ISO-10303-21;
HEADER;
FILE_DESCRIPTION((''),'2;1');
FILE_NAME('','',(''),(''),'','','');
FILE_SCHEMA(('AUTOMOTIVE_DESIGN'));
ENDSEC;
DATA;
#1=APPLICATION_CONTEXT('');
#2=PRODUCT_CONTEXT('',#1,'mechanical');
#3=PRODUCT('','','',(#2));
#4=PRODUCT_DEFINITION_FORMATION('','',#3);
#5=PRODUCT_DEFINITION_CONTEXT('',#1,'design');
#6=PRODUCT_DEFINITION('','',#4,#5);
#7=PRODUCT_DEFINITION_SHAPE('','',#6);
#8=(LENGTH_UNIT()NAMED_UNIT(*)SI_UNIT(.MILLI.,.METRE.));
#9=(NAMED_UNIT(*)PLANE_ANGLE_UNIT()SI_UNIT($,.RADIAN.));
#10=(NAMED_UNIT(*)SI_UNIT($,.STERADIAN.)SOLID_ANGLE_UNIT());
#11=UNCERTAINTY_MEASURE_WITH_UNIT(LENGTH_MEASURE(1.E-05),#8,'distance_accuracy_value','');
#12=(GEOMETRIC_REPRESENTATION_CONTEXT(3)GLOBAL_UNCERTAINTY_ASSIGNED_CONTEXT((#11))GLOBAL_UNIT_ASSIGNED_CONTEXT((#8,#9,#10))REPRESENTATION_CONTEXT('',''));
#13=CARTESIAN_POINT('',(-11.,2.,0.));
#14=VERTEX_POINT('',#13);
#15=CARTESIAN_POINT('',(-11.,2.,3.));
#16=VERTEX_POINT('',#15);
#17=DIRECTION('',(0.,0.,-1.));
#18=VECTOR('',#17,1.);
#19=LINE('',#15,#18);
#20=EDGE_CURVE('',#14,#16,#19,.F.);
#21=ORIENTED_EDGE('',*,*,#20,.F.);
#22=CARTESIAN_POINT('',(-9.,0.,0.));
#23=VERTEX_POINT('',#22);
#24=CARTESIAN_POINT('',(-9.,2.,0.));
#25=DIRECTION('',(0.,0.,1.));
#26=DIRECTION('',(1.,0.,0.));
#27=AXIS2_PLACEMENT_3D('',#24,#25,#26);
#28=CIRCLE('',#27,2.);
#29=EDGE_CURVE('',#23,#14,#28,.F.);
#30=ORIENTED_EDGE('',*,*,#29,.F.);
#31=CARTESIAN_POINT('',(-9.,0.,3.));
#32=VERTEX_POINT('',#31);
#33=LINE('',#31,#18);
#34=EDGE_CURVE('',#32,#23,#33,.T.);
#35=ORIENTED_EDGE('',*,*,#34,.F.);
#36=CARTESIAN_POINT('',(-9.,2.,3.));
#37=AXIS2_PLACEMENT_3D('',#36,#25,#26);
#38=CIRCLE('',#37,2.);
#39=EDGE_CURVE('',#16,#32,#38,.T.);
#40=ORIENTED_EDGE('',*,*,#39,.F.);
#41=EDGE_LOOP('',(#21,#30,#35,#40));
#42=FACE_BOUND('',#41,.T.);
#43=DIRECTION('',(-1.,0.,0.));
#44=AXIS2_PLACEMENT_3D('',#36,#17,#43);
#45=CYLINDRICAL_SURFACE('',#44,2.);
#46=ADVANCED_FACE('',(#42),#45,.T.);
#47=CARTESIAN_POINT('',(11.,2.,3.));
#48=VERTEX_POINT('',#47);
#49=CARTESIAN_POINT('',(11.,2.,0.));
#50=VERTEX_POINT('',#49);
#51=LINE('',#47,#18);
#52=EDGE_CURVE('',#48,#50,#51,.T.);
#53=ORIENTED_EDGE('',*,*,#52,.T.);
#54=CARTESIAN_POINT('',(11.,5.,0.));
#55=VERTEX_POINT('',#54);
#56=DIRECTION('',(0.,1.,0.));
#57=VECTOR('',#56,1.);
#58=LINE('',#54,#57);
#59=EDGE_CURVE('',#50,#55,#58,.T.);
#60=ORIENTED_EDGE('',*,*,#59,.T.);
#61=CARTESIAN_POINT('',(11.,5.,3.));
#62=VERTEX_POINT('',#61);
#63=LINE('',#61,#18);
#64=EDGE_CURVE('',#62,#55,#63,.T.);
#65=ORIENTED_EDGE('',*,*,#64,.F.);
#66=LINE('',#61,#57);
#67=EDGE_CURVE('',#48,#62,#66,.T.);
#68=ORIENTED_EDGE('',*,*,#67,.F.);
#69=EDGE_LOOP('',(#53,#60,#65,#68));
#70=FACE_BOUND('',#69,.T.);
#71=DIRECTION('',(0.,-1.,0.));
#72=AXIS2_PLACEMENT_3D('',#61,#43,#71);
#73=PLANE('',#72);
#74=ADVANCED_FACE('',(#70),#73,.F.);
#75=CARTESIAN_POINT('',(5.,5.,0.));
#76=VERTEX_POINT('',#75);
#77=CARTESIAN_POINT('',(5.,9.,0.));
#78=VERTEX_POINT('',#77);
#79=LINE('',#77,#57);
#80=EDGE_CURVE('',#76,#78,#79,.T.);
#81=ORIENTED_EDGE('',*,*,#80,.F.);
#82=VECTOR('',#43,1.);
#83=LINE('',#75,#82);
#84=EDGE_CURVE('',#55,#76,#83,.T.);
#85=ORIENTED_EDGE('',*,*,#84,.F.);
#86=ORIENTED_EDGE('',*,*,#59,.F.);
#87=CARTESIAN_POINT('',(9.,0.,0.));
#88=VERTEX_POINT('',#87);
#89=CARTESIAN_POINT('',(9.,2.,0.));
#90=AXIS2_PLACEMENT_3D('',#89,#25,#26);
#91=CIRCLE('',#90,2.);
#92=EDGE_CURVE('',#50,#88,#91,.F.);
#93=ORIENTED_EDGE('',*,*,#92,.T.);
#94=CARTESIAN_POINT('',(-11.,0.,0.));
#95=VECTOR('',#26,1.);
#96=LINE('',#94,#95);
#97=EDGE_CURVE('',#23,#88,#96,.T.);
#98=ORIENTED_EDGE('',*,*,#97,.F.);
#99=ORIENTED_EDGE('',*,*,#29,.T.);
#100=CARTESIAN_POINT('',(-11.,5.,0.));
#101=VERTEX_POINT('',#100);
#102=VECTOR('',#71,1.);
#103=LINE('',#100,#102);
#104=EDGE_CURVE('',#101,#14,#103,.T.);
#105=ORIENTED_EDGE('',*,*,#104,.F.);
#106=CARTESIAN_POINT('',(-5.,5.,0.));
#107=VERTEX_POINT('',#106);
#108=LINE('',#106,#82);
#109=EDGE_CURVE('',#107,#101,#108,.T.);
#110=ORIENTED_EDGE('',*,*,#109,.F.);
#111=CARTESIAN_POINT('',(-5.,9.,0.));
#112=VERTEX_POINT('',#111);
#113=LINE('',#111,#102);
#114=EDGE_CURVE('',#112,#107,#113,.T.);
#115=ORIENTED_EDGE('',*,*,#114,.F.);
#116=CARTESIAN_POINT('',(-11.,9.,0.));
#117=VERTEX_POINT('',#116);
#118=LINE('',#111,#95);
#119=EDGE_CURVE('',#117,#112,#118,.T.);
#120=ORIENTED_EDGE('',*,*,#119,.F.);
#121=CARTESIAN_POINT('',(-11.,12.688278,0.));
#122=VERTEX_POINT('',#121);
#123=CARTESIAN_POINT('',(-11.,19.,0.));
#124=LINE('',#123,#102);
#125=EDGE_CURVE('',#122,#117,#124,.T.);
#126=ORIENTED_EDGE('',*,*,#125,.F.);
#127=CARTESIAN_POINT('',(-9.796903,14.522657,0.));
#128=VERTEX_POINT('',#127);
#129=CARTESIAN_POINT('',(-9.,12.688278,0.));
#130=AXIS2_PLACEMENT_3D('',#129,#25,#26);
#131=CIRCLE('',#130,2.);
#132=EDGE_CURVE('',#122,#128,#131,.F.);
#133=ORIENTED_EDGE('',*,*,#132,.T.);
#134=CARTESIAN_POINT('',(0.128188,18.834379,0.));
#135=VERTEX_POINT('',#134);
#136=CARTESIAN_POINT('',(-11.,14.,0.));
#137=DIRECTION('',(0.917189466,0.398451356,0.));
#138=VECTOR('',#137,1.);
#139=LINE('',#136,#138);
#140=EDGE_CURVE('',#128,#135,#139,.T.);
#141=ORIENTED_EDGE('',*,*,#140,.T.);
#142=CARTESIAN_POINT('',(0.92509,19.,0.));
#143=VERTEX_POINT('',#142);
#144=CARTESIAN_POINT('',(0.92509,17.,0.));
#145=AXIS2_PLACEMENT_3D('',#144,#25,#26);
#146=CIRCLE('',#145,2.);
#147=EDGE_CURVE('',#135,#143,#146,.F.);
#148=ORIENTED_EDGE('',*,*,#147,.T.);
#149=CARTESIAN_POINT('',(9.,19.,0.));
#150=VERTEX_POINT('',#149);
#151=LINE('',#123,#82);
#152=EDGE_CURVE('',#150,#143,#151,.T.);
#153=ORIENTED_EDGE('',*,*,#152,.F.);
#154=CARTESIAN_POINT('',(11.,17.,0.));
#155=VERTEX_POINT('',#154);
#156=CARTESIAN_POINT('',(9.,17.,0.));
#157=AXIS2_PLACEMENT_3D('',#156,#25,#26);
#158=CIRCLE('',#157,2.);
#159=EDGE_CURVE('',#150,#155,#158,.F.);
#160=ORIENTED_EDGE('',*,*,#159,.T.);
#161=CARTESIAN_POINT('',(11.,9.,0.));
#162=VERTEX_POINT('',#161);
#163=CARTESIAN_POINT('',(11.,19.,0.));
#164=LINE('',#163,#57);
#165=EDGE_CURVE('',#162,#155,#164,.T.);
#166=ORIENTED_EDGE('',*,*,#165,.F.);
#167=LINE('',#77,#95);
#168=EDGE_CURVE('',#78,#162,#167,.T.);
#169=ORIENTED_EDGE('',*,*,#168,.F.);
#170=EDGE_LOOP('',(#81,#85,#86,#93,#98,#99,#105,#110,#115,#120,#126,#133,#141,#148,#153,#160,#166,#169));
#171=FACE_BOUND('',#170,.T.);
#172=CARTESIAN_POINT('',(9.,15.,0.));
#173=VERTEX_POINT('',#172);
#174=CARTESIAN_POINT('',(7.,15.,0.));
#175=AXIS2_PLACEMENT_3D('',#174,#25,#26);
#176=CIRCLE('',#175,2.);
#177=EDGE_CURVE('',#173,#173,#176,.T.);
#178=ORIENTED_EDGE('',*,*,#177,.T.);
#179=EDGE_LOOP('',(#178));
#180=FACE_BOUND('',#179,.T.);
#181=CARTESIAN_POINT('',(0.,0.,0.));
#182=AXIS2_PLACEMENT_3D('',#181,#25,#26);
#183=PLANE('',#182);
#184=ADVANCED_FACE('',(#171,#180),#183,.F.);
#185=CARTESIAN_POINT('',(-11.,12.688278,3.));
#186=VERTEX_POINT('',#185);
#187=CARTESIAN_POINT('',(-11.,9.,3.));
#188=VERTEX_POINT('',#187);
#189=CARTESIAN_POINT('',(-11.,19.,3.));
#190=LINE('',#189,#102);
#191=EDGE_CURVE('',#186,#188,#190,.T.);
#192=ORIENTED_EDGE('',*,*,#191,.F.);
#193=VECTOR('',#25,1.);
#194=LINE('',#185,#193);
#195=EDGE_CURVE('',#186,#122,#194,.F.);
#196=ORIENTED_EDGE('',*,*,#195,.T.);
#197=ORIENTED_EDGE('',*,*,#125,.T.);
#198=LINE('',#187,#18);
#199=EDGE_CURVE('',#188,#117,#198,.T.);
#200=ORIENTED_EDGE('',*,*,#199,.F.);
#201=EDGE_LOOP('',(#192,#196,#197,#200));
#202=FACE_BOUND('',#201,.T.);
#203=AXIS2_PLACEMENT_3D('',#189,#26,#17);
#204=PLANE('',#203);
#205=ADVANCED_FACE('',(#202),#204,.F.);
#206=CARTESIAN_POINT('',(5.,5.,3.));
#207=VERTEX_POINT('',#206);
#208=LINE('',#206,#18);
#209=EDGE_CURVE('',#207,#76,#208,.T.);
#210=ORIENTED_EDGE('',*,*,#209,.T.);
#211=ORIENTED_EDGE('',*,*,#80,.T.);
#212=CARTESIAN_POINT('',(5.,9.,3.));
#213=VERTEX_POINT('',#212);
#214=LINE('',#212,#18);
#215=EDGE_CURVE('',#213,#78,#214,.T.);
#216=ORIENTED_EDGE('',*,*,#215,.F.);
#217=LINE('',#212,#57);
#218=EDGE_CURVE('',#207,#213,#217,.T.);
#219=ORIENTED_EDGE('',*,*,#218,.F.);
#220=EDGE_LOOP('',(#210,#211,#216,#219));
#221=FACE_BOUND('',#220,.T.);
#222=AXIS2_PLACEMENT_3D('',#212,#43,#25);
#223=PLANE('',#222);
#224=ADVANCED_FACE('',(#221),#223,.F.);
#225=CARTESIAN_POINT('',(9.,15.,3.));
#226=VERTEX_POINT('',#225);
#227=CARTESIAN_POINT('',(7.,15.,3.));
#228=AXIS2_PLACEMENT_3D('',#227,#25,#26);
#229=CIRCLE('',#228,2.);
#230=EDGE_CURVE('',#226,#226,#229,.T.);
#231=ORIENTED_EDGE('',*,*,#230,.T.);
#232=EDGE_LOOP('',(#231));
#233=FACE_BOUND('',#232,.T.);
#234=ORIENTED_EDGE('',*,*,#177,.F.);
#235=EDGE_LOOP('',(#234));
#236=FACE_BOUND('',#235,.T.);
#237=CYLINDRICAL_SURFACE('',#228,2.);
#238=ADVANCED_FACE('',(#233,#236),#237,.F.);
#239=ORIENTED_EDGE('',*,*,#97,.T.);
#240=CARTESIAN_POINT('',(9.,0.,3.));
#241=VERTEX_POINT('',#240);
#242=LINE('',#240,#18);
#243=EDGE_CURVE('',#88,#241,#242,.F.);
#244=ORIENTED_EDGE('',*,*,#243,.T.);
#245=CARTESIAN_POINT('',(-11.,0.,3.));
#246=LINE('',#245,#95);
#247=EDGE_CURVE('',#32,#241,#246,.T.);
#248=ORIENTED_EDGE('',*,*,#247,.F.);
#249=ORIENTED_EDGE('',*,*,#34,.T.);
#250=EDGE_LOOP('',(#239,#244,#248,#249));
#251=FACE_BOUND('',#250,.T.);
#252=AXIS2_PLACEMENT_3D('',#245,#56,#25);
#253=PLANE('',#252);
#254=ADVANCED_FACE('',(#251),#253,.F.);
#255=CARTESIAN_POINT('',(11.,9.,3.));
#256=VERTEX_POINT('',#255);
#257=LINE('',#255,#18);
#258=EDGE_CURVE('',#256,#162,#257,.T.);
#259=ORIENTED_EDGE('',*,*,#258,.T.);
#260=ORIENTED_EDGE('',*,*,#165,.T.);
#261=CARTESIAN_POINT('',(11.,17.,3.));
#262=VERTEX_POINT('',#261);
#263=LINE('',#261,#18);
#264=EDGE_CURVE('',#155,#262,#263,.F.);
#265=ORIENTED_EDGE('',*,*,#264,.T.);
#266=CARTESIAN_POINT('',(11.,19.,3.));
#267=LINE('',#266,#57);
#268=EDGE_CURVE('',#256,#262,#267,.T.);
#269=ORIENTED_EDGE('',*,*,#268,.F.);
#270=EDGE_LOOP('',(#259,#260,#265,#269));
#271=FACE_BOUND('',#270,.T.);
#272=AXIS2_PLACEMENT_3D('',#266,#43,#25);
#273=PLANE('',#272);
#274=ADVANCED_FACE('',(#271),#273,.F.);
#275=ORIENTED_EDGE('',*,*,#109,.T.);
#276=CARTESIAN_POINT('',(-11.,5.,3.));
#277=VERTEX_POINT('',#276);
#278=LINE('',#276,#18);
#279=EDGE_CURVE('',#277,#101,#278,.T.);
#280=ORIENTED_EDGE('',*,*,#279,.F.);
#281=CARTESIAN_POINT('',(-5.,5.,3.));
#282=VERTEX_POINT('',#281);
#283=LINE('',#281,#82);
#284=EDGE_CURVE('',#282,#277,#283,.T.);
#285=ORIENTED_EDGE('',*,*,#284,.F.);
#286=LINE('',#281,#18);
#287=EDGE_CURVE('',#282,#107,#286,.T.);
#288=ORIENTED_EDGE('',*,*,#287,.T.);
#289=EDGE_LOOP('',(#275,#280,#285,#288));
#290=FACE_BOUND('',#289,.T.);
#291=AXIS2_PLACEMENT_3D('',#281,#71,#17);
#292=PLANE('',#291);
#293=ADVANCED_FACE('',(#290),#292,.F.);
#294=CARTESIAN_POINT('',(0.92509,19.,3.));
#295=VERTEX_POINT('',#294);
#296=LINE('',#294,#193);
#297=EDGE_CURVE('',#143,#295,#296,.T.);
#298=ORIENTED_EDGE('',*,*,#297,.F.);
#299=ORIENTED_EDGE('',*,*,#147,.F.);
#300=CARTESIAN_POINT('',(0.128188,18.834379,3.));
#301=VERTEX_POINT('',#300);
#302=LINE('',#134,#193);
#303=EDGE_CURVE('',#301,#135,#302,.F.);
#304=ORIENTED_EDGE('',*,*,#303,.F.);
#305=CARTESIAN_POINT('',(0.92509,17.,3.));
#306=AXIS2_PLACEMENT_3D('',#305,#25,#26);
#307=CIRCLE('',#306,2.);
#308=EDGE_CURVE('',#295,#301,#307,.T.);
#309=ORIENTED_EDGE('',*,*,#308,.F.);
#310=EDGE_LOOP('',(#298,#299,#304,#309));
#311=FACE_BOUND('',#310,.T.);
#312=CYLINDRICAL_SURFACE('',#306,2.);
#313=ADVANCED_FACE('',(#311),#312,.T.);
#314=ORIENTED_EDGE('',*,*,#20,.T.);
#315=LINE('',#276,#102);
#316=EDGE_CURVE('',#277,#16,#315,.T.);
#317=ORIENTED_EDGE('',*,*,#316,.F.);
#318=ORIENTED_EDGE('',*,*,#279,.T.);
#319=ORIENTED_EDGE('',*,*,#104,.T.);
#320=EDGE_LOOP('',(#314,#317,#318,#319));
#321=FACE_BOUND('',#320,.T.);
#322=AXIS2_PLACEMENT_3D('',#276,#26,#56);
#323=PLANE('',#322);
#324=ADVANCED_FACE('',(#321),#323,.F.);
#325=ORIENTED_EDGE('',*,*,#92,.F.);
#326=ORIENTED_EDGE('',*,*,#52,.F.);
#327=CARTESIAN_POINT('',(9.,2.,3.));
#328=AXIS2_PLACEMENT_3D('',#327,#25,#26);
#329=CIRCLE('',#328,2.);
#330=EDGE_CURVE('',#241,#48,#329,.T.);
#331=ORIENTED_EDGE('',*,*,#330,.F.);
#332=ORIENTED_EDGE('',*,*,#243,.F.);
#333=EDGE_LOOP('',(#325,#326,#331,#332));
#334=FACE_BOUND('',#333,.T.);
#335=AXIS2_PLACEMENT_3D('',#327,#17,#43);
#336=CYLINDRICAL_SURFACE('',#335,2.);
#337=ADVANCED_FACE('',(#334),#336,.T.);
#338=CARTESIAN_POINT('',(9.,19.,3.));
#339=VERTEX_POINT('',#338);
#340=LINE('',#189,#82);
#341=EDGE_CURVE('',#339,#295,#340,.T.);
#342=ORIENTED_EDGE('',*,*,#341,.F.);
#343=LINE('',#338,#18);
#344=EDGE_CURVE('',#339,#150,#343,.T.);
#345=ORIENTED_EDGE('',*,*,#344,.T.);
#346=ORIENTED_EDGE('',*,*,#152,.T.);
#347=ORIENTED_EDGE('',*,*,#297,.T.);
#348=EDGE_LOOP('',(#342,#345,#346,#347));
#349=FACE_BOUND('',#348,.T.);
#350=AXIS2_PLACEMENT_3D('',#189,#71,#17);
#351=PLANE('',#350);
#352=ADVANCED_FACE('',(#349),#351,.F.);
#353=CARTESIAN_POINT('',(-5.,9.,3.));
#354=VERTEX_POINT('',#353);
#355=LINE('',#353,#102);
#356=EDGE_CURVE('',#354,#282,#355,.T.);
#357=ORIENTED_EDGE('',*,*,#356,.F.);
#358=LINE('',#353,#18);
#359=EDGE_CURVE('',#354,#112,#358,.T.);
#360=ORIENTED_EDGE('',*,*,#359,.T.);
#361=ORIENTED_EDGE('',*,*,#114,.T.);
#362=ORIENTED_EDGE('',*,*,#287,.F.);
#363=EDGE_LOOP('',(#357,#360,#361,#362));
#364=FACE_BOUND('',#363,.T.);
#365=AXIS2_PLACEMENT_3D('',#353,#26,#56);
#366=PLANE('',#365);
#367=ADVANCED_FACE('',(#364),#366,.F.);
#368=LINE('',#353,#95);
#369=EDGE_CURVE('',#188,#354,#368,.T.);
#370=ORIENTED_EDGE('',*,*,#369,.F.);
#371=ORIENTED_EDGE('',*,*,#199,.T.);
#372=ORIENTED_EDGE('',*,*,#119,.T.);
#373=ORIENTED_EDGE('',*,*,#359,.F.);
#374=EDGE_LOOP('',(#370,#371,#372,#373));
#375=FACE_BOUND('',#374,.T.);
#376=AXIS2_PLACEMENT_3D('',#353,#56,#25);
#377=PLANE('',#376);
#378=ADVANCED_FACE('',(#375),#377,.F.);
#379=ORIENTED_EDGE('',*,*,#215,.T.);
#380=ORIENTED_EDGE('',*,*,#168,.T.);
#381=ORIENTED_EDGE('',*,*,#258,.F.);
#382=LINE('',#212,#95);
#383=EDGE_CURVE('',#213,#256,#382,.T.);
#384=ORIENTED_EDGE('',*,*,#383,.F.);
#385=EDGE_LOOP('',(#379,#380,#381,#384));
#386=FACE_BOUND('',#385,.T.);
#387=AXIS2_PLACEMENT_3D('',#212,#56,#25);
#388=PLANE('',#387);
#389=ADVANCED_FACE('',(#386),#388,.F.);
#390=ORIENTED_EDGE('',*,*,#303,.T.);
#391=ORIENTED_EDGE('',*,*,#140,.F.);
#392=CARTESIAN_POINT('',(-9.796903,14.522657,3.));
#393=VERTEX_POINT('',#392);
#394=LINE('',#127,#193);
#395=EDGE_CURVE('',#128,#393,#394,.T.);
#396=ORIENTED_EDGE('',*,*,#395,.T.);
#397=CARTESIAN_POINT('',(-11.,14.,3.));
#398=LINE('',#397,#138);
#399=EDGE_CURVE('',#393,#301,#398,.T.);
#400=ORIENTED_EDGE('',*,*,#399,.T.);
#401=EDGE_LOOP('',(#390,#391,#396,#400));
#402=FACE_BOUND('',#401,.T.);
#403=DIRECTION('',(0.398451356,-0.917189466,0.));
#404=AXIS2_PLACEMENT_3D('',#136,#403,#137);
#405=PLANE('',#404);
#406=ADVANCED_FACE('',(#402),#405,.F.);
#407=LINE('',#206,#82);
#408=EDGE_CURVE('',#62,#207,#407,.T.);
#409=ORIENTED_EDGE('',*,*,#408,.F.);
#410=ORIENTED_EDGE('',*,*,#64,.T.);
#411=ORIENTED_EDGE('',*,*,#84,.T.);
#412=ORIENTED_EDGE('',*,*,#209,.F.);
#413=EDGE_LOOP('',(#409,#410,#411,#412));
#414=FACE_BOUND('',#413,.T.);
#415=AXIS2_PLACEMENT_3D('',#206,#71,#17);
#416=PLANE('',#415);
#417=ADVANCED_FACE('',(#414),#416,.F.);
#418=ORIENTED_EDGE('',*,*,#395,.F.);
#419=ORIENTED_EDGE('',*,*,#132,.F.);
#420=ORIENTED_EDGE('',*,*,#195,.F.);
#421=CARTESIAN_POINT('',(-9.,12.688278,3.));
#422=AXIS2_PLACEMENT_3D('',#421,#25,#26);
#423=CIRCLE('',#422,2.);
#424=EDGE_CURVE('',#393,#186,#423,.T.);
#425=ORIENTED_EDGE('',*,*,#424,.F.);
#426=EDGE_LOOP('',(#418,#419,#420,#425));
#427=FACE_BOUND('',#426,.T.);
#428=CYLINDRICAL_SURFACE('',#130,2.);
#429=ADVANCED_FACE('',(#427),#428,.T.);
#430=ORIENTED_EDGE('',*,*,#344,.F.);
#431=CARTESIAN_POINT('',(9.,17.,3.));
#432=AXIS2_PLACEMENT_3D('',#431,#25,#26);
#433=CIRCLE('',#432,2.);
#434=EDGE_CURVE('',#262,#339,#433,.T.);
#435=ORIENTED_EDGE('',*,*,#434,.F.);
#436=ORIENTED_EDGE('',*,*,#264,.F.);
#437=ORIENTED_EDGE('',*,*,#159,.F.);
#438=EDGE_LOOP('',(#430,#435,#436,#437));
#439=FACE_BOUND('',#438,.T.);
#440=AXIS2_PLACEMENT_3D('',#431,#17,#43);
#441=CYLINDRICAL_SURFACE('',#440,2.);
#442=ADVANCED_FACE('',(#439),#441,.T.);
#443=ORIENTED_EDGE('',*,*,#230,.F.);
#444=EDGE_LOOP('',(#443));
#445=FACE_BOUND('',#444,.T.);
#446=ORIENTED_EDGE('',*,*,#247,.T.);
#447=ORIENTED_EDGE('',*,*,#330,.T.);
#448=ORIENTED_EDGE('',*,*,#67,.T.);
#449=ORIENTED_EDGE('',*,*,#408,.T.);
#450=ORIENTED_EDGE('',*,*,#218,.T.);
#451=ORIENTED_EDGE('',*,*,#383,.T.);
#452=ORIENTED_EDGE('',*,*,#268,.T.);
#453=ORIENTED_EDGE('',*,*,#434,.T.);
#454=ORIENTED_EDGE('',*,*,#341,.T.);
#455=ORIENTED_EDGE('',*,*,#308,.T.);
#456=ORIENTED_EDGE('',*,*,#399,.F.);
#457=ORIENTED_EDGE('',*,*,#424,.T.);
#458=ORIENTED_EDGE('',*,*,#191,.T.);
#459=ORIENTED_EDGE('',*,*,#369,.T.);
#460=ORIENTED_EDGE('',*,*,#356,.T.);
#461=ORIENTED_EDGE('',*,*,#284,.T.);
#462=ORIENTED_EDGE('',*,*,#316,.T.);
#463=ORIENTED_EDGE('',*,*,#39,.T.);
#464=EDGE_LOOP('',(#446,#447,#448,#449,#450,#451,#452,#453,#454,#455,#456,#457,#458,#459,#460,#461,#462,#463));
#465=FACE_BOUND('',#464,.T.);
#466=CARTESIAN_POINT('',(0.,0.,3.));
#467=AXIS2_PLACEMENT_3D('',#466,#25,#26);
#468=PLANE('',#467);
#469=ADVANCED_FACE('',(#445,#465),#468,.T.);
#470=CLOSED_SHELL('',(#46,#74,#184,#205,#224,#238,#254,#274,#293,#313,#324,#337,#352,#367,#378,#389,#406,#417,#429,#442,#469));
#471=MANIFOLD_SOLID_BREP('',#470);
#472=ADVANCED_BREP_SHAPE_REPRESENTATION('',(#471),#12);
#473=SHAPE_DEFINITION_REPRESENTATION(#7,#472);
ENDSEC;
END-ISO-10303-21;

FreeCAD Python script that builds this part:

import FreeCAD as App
import Part
import Sketcher
from FreeCAD import Vector


def edges_at(feature, points):
    """Names of the edges that pass closest to the given points."""
    edges = feature.Shape.Edges
    near = lambda p: min(range(len(edges)), key=lambda i: edges[i].distToShape(Part.Vertex(*p))[0])
    return sorted({f"Edge{near(p) + 1}" for p in points})


def add_polygon(sketch, points):
    """Adds a closed chain of lines whose ends are joined by coincident constraints."""
    first, n = sketch.GeometryCount, len(points)
    for a, b in zip(points, points[1:] + points[:1]):
        sketch.addGeometry(Part.LineSegment(App.Vector(*a, 0), App.Vector(*b, 0)), False)
    for i in range(n):
        sketch.addConstraint(Sketcher.Constraint("Coincident", first + i, 2, first + (i + 1) % n, 1))

doc = App.newDocument("Part")
body = doc.addObject("PartDesign::Body", "Body")

sketch1 = body.newObject("Sketcher::SketchObject", "Sketch")
sketch1.AttachmentSupport = (doc.getObject("XY_Plane"), [""])
sketch1.MapMode = "FlatFace"
add_polygon(sketch1, [(-11, 5), (-11, 0), (11, 0), (11, 5), (5, 5), (5, 9), (11, 9), (11, 19), (-11, 19), (-11, 9), (-5, 9), (-5, 5)])
sketch1.addConstraint([
    Sketcher.Constraint("Vertical", 0),
    Sketcher.Constraint("Horizontal", 1),
    Sketcher.Constraint("Vertical", 2),
    Sketcher.Constraint("Horizontal", 3),
    Sketcher.Constraint("Vertical", 4),
    Sketcher.Constraint("Horizontal", 5),
    Sketcher.Constraint("Vertical", 6),
    Sketcher.Constraint("Horizontal", 7),
    Sketcher.Constraint("Vertical", 8),
    Sketcher.Constraint("Horizontal", 9),
    Sketcher.Constraint("Vertical", 10),
    Sketcher.Constraint("Horizontal", 11),
    Sketcher.Constraint("Symmetric", 0, 2, 1, 2, -1, 1),
    Sketcher.Constraint("Symmetric", 5, 2, 8, 2, -2),
    Sketcher.Constraint("Symmetric", 3, 2, 10, 2, -2),
    Sketcher.Constraint("Vertical", 2, 2, 5, 2),
    Sketcher.Constraint("DistanceX", 1, 1, 1, 2, 22.0),
    Sketcher.Constraint("DistanceX", 3, 2, 3, 1, 6.0),
    Sketcher.Constraint("DistanceY", 0, 2, 0, 1, 5.0),
    Sketcher.Constraint("DistanceY", 4, 1, 4, 2, 4.0),
    Sketcher.Constraint("DistanceY", 6, 1, 6, 2, 10.0),
])
pad1 = body.newObject("PartDesign::Pad", "Pad")
pad1.Profile = sketch1
pad1.Length = 3

sketch2 = body.newObject("Sketcher::SketchObject", "Sketch001")
sketch2.AttachmentSupport = (doc.getObject("XY_Plane"), [""])
sketch2.MapMode = "FlatFace"
sketch2.AttachmentOffset = App.Placement(Vector(0, 0, 3), App.Rotation())
sketch2.addGeometry(Part.Circle(Vector(7, 15, 0), Vector(0, 0, 1), 2), False)
sketch2.addConstraint([
    Sketcher.Constraint("Diameter", 0, 4.0),
    Sketcher.Constraint("DistanceX", -1, 1, 0, 3, 7.0),
    Sketcher.Constraint("DistanceY", -1, 1, 0, 3, 15.0),
])
doc.recompute()
hole = body.newObject("PartDesign::Hole", "Hole")
hole.Profile = sketch2
hole.ThreadType = "None"
hole.Diameter = 4
hole.DepthType = "ThroughAll"

sketch3 = body.newObject("Sketcher::SketchObject", "Sketch002")
sketch3.AttachmentSupport = (doc.getObject("XY_Plane"), [""])
sketch3.MapMode = "FlatFace"
sketch3.AttachmentOffset = App.Placement(Vector(0, 0, 3), App.Rotation())
add_polygon(sketch3, [(-11, 14), (0.509428, 19), (-11, 19)])
sketch3.addConstraint([
    Sketcher.Constraint("Horizontal", 1),
    Sketcher.Constraint("Vertical", 2),
    Sketcher.Constraint("DistanceY", 2, 2, 2, 1, 5.0),
    Sketcher.Constraint("DistanceY", -1, 1, 0, 2, 19.0),
    Sketcher.Constraint("DistanceX", 1, 2, -1, 1, 11.0),
    Sketcher.Constraint("DistanceX", 1, 2, 1, 1, 11.509428),
])
pocket1 = body.newObject("PartDesign::Pocket", "Pocket")
pocket1.Profile = sketch3
pocket1.Length = 3
doc.recompute()

fillet = body.newObject("PartDesign::Fillet", "Fillet")
fillet.Base = (pocket1, edges_at(pocket1, [
    (11, 19, 1.5),
    (11, 0, 1.5),
    (-11, 0, 1.5),
    (-11, 14, 1.5),
    (0.509, 19, 1.5),
]))
fillet.Radius = 2

doc.recompute()
